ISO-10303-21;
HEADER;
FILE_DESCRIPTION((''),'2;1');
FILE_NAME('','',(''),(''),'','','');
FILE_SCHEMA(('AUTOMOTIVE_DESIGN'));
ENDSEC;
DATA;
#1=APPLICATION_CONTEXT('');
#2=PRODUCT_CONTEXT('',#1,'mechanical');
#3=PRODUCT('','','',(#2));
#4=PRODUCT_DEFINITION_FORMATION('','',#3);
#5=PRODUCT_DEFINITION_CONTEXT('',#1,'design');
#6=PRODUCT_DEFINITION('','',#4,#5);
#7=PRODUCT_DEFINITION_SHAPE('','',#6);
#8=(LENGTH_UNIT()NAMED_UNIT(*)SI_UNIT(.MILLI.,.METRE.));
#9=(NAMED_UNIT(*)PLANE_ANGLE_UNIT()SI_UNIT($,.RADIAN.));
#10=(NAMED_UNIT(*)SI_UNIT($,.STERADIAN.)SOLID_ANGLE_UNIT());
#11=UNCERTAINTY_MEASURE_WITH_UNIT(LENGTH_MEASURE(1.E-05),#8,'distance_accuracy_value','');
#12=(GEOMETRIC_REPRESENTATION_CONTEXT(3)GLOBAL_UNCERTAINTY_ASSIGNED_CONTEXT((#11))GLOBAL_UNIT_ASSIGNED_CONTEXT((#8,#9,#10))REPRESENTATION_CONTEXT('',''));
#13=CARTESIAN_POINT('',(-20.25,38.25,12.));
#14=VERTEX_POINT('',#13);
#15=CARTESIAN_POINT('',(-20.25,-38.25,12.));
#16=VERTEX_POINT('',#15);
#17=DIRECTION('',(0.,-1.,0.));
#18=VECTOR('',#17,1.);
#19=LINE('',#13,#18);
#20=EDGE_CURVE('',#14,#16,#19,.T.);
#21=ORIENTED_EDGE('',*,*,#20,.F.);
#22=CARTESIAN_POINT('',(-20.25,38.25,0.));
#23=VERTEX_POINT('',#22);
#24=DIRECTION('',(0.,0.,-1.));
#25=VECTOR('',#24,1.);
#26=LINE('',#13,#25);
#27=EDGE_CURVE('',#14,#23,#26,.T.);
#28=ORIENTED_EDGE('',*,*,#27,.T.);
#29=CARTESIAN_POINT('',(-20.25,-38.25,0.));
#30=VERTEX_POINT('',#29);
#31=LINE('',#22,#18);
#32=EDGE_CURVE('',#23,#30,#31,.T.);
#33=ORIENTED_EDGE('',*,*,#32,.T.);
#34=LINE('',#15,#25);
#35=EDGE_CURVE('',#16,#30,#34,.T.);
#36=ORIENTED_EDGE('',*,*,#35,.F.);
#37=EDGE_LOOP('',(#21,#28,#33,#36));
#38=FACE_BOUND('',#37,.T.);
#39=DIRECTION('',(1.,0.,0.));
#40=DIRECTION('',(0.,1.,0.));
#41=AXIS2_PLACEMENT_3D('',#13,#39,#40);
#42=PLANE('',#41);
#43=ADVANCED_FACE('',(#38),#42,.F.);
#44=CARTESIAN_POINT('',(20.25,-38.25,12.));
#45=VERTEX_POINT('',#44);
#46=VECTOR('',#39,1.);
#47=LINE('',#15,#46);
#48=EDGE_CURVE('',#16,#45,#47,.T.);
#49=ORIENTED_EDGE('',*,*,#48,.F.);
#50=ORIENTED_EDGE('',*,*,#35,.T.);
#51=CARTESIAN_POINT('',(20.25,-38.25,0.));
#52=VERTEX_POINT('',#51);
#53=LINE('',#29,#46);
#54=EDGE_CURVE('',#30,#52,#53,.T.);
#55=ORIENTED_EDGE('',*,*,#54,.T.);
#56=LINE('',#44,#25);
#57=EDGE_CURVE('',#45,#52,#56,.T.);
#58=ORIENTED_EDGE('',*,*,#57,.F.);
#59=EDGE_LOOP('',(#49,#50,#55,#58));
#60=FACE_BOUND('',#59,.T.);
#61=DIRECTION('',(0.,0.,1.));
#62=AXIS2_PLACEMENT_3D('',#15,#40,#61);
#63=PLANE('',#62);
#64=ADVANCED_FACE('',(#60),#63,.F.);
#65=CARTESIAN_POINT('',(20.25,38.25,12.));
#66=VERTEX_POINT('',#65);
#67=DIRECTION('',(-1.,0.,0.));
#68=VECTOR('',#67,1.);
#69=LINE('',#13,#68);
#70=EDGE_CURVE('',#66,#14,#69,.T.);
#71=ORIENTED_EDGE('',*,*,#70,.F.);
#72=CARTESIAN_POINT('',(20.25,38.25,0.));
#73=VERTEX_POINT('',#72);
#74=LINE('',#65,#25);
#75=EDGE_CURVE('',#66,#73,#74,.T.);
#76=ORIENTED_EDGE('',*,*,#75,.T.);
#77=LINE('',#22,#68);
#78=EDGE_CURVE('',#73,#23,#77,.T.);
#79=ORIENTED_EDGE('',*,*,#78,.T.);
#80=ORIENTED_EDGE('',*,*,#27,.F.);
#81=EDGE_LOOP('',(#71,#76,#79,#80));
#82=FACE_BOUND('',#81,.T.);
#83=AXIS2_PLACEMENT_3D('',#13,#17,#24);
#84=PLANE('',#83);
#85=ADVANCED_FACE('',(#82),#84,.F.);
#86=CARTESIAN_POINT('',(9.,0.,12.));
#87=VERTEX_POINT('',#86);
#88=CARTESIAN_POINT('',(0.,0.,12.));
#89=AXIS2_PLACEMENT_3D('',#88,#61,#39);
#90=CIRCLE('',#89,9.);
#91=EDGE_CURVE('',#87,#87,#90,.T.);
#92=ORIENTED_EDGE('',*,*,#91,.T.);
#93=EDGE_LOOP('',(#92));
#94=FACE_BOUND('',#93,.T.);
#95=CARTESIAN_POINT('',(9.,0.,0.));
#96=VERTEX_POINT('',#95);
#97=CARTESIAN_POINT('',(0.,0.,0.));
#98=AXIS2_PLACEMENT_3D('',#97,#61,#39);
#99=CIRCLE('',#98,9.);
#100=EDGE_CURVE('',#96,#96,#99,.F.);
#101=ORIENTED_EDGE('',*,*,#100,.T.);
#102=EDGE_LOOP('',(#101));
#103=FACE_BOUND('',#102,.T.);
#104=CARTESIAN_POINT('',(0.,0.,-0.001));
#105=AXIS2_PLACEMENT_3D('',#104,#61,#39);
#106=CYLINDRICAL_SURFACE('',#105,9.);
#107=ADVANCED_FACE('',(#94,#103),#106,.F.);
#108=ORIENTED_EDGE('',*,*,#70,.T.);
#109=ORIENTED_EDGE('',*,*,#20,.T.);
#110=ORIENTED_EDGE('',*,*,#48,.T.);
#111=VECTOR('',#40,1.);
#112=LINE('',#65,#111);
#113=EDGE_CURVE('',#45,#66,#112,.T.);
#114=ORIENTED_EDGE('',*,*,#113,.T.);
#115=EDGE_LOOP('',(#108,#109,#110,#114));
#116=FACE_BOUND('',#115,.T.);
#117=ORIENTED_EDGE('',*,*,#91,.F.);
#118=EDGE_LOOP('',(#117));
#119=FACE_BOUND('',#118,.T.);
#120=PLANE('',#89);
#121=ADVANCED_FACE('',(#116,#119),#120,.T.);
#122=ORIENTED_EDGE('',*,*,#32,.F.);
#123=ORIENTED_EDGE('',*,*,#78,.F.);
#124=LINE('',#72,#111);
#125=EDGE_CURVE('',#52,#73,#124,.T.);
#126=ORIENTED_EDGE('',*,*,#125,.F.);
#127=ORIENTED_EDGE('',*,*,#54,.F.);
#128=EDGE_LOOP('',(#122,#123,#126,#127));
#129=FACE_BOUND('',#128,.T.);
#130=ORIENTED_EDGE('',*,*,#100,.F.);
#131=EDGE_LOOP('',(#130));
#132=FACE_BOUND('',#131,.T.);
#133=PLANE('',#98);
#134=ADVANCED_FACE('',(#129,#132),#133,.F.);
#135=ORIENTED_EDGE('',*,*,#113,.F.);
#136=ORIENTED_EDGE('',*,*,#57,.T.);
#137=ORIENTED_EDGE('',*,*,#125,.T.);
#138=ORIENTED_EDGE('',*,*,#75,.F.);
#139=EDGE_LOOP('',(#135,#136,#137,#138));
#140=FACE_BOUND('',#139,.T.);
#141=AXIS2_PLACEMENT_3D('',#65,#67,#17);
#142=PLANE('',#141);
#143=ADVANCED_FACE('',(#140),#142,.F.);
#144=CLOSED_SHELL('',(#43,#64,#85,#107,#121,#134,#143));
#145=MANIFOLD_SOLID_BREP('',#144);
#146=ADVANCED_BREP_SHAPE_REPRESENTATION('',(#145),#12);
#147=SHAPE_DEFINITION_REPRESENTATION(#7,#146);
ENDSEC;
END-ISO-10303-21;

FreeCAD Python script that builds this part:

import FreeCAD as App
import Part
import Sketcher
from FreeCAD import Vector
Q = App.Units.Quantity

doc = App.newDocument("Part")
body = doc.addObject("PartDesign::Body", "Body")

sketch1 = doc.addObject("Sketcher::SketchObject", "Sketch")
body.addObject(sketch1)
sketch1.AttachmentSupport = (doc.XY_Plane, [""])
sketch1.MapMode = "FlatFace"
sketch1.addGeometry([
    Part.LineSegment(Vector(-20, 38, 0), Vector(-20, -38, 0)),
    Part.LineSegment(Vector(-20, -38, 0), Vector(20, -38, 0)),
    Part.LineSegment(Vector(20, -38, 0), Vector(20, 38, 0)),
    Part.LineSegment(Vector(20, 38, 0), Vector(-20, 38, 0)),
], False)
sketch1.addConstraint([
    Sketcher.Constraint("Coincident", 0, 2, 1, 1),
    Sketcher.Constraint("Coincident", 1, 2, 2, 1),
    Sketcher.Constraint("Coincident", 2, 2, 3, 1),
    Sketcher.Constraint("Coincident", 3, 2, 0, 1),
    Sketcher.Constraint("Vertical", 0),
    Sketcher.Constraint("Horizontal", 1),
    Sketcher.Constraint("Vertical", 2),
    Sketcher.Constraint("Horizontal", 3),
    Sketcher.Constraint("Symmetric", 0, 2, 2, 2, -1, 1),
    Sketcher.Constraint("DistanceX", 1, 1, 1, 2, Q("40.5 mm")),
    Sketcher.Constraint("DistanceY", 0, 2, 0, 1, Q("76.5 mm")),
])
pad1 = doc.addObject("PartDesign::Pad", "Pad")
body.addObject(pad1)
pad1.Profile = sketch1
pad1.Length = 12

sketch2 = doc.addObject("Sketcher::SketchObject", "Sketch001")
body.addObject(sketch2)
sketch2.AttachmentSupport = (doc.XY_Plane, [""])
sketch2.MapMode = "FlatFace"
sketch2.AttachmentOffset = App.Placement(Vector(0, 0, 12), App.Rotation())
sketch2.addGeometry(Part.Circle(Vector(0, 0, 0), Vector(0, 0, 1), 9), False)
sketch2.addConstraint([
    Sketcher.Constraint("Coincident", 0, 3, -1, 1),
    Sketcher.Constraint("Diameter", 0, Q("18 mm")),
])
pocket1 = doc.addObject("PartDesign::Pocket", "Pocket")
body.addObject(pocket1)
pocket1.Profile = sketch2
pocket1.Type = "UpToFirst"

doc.recompute()
